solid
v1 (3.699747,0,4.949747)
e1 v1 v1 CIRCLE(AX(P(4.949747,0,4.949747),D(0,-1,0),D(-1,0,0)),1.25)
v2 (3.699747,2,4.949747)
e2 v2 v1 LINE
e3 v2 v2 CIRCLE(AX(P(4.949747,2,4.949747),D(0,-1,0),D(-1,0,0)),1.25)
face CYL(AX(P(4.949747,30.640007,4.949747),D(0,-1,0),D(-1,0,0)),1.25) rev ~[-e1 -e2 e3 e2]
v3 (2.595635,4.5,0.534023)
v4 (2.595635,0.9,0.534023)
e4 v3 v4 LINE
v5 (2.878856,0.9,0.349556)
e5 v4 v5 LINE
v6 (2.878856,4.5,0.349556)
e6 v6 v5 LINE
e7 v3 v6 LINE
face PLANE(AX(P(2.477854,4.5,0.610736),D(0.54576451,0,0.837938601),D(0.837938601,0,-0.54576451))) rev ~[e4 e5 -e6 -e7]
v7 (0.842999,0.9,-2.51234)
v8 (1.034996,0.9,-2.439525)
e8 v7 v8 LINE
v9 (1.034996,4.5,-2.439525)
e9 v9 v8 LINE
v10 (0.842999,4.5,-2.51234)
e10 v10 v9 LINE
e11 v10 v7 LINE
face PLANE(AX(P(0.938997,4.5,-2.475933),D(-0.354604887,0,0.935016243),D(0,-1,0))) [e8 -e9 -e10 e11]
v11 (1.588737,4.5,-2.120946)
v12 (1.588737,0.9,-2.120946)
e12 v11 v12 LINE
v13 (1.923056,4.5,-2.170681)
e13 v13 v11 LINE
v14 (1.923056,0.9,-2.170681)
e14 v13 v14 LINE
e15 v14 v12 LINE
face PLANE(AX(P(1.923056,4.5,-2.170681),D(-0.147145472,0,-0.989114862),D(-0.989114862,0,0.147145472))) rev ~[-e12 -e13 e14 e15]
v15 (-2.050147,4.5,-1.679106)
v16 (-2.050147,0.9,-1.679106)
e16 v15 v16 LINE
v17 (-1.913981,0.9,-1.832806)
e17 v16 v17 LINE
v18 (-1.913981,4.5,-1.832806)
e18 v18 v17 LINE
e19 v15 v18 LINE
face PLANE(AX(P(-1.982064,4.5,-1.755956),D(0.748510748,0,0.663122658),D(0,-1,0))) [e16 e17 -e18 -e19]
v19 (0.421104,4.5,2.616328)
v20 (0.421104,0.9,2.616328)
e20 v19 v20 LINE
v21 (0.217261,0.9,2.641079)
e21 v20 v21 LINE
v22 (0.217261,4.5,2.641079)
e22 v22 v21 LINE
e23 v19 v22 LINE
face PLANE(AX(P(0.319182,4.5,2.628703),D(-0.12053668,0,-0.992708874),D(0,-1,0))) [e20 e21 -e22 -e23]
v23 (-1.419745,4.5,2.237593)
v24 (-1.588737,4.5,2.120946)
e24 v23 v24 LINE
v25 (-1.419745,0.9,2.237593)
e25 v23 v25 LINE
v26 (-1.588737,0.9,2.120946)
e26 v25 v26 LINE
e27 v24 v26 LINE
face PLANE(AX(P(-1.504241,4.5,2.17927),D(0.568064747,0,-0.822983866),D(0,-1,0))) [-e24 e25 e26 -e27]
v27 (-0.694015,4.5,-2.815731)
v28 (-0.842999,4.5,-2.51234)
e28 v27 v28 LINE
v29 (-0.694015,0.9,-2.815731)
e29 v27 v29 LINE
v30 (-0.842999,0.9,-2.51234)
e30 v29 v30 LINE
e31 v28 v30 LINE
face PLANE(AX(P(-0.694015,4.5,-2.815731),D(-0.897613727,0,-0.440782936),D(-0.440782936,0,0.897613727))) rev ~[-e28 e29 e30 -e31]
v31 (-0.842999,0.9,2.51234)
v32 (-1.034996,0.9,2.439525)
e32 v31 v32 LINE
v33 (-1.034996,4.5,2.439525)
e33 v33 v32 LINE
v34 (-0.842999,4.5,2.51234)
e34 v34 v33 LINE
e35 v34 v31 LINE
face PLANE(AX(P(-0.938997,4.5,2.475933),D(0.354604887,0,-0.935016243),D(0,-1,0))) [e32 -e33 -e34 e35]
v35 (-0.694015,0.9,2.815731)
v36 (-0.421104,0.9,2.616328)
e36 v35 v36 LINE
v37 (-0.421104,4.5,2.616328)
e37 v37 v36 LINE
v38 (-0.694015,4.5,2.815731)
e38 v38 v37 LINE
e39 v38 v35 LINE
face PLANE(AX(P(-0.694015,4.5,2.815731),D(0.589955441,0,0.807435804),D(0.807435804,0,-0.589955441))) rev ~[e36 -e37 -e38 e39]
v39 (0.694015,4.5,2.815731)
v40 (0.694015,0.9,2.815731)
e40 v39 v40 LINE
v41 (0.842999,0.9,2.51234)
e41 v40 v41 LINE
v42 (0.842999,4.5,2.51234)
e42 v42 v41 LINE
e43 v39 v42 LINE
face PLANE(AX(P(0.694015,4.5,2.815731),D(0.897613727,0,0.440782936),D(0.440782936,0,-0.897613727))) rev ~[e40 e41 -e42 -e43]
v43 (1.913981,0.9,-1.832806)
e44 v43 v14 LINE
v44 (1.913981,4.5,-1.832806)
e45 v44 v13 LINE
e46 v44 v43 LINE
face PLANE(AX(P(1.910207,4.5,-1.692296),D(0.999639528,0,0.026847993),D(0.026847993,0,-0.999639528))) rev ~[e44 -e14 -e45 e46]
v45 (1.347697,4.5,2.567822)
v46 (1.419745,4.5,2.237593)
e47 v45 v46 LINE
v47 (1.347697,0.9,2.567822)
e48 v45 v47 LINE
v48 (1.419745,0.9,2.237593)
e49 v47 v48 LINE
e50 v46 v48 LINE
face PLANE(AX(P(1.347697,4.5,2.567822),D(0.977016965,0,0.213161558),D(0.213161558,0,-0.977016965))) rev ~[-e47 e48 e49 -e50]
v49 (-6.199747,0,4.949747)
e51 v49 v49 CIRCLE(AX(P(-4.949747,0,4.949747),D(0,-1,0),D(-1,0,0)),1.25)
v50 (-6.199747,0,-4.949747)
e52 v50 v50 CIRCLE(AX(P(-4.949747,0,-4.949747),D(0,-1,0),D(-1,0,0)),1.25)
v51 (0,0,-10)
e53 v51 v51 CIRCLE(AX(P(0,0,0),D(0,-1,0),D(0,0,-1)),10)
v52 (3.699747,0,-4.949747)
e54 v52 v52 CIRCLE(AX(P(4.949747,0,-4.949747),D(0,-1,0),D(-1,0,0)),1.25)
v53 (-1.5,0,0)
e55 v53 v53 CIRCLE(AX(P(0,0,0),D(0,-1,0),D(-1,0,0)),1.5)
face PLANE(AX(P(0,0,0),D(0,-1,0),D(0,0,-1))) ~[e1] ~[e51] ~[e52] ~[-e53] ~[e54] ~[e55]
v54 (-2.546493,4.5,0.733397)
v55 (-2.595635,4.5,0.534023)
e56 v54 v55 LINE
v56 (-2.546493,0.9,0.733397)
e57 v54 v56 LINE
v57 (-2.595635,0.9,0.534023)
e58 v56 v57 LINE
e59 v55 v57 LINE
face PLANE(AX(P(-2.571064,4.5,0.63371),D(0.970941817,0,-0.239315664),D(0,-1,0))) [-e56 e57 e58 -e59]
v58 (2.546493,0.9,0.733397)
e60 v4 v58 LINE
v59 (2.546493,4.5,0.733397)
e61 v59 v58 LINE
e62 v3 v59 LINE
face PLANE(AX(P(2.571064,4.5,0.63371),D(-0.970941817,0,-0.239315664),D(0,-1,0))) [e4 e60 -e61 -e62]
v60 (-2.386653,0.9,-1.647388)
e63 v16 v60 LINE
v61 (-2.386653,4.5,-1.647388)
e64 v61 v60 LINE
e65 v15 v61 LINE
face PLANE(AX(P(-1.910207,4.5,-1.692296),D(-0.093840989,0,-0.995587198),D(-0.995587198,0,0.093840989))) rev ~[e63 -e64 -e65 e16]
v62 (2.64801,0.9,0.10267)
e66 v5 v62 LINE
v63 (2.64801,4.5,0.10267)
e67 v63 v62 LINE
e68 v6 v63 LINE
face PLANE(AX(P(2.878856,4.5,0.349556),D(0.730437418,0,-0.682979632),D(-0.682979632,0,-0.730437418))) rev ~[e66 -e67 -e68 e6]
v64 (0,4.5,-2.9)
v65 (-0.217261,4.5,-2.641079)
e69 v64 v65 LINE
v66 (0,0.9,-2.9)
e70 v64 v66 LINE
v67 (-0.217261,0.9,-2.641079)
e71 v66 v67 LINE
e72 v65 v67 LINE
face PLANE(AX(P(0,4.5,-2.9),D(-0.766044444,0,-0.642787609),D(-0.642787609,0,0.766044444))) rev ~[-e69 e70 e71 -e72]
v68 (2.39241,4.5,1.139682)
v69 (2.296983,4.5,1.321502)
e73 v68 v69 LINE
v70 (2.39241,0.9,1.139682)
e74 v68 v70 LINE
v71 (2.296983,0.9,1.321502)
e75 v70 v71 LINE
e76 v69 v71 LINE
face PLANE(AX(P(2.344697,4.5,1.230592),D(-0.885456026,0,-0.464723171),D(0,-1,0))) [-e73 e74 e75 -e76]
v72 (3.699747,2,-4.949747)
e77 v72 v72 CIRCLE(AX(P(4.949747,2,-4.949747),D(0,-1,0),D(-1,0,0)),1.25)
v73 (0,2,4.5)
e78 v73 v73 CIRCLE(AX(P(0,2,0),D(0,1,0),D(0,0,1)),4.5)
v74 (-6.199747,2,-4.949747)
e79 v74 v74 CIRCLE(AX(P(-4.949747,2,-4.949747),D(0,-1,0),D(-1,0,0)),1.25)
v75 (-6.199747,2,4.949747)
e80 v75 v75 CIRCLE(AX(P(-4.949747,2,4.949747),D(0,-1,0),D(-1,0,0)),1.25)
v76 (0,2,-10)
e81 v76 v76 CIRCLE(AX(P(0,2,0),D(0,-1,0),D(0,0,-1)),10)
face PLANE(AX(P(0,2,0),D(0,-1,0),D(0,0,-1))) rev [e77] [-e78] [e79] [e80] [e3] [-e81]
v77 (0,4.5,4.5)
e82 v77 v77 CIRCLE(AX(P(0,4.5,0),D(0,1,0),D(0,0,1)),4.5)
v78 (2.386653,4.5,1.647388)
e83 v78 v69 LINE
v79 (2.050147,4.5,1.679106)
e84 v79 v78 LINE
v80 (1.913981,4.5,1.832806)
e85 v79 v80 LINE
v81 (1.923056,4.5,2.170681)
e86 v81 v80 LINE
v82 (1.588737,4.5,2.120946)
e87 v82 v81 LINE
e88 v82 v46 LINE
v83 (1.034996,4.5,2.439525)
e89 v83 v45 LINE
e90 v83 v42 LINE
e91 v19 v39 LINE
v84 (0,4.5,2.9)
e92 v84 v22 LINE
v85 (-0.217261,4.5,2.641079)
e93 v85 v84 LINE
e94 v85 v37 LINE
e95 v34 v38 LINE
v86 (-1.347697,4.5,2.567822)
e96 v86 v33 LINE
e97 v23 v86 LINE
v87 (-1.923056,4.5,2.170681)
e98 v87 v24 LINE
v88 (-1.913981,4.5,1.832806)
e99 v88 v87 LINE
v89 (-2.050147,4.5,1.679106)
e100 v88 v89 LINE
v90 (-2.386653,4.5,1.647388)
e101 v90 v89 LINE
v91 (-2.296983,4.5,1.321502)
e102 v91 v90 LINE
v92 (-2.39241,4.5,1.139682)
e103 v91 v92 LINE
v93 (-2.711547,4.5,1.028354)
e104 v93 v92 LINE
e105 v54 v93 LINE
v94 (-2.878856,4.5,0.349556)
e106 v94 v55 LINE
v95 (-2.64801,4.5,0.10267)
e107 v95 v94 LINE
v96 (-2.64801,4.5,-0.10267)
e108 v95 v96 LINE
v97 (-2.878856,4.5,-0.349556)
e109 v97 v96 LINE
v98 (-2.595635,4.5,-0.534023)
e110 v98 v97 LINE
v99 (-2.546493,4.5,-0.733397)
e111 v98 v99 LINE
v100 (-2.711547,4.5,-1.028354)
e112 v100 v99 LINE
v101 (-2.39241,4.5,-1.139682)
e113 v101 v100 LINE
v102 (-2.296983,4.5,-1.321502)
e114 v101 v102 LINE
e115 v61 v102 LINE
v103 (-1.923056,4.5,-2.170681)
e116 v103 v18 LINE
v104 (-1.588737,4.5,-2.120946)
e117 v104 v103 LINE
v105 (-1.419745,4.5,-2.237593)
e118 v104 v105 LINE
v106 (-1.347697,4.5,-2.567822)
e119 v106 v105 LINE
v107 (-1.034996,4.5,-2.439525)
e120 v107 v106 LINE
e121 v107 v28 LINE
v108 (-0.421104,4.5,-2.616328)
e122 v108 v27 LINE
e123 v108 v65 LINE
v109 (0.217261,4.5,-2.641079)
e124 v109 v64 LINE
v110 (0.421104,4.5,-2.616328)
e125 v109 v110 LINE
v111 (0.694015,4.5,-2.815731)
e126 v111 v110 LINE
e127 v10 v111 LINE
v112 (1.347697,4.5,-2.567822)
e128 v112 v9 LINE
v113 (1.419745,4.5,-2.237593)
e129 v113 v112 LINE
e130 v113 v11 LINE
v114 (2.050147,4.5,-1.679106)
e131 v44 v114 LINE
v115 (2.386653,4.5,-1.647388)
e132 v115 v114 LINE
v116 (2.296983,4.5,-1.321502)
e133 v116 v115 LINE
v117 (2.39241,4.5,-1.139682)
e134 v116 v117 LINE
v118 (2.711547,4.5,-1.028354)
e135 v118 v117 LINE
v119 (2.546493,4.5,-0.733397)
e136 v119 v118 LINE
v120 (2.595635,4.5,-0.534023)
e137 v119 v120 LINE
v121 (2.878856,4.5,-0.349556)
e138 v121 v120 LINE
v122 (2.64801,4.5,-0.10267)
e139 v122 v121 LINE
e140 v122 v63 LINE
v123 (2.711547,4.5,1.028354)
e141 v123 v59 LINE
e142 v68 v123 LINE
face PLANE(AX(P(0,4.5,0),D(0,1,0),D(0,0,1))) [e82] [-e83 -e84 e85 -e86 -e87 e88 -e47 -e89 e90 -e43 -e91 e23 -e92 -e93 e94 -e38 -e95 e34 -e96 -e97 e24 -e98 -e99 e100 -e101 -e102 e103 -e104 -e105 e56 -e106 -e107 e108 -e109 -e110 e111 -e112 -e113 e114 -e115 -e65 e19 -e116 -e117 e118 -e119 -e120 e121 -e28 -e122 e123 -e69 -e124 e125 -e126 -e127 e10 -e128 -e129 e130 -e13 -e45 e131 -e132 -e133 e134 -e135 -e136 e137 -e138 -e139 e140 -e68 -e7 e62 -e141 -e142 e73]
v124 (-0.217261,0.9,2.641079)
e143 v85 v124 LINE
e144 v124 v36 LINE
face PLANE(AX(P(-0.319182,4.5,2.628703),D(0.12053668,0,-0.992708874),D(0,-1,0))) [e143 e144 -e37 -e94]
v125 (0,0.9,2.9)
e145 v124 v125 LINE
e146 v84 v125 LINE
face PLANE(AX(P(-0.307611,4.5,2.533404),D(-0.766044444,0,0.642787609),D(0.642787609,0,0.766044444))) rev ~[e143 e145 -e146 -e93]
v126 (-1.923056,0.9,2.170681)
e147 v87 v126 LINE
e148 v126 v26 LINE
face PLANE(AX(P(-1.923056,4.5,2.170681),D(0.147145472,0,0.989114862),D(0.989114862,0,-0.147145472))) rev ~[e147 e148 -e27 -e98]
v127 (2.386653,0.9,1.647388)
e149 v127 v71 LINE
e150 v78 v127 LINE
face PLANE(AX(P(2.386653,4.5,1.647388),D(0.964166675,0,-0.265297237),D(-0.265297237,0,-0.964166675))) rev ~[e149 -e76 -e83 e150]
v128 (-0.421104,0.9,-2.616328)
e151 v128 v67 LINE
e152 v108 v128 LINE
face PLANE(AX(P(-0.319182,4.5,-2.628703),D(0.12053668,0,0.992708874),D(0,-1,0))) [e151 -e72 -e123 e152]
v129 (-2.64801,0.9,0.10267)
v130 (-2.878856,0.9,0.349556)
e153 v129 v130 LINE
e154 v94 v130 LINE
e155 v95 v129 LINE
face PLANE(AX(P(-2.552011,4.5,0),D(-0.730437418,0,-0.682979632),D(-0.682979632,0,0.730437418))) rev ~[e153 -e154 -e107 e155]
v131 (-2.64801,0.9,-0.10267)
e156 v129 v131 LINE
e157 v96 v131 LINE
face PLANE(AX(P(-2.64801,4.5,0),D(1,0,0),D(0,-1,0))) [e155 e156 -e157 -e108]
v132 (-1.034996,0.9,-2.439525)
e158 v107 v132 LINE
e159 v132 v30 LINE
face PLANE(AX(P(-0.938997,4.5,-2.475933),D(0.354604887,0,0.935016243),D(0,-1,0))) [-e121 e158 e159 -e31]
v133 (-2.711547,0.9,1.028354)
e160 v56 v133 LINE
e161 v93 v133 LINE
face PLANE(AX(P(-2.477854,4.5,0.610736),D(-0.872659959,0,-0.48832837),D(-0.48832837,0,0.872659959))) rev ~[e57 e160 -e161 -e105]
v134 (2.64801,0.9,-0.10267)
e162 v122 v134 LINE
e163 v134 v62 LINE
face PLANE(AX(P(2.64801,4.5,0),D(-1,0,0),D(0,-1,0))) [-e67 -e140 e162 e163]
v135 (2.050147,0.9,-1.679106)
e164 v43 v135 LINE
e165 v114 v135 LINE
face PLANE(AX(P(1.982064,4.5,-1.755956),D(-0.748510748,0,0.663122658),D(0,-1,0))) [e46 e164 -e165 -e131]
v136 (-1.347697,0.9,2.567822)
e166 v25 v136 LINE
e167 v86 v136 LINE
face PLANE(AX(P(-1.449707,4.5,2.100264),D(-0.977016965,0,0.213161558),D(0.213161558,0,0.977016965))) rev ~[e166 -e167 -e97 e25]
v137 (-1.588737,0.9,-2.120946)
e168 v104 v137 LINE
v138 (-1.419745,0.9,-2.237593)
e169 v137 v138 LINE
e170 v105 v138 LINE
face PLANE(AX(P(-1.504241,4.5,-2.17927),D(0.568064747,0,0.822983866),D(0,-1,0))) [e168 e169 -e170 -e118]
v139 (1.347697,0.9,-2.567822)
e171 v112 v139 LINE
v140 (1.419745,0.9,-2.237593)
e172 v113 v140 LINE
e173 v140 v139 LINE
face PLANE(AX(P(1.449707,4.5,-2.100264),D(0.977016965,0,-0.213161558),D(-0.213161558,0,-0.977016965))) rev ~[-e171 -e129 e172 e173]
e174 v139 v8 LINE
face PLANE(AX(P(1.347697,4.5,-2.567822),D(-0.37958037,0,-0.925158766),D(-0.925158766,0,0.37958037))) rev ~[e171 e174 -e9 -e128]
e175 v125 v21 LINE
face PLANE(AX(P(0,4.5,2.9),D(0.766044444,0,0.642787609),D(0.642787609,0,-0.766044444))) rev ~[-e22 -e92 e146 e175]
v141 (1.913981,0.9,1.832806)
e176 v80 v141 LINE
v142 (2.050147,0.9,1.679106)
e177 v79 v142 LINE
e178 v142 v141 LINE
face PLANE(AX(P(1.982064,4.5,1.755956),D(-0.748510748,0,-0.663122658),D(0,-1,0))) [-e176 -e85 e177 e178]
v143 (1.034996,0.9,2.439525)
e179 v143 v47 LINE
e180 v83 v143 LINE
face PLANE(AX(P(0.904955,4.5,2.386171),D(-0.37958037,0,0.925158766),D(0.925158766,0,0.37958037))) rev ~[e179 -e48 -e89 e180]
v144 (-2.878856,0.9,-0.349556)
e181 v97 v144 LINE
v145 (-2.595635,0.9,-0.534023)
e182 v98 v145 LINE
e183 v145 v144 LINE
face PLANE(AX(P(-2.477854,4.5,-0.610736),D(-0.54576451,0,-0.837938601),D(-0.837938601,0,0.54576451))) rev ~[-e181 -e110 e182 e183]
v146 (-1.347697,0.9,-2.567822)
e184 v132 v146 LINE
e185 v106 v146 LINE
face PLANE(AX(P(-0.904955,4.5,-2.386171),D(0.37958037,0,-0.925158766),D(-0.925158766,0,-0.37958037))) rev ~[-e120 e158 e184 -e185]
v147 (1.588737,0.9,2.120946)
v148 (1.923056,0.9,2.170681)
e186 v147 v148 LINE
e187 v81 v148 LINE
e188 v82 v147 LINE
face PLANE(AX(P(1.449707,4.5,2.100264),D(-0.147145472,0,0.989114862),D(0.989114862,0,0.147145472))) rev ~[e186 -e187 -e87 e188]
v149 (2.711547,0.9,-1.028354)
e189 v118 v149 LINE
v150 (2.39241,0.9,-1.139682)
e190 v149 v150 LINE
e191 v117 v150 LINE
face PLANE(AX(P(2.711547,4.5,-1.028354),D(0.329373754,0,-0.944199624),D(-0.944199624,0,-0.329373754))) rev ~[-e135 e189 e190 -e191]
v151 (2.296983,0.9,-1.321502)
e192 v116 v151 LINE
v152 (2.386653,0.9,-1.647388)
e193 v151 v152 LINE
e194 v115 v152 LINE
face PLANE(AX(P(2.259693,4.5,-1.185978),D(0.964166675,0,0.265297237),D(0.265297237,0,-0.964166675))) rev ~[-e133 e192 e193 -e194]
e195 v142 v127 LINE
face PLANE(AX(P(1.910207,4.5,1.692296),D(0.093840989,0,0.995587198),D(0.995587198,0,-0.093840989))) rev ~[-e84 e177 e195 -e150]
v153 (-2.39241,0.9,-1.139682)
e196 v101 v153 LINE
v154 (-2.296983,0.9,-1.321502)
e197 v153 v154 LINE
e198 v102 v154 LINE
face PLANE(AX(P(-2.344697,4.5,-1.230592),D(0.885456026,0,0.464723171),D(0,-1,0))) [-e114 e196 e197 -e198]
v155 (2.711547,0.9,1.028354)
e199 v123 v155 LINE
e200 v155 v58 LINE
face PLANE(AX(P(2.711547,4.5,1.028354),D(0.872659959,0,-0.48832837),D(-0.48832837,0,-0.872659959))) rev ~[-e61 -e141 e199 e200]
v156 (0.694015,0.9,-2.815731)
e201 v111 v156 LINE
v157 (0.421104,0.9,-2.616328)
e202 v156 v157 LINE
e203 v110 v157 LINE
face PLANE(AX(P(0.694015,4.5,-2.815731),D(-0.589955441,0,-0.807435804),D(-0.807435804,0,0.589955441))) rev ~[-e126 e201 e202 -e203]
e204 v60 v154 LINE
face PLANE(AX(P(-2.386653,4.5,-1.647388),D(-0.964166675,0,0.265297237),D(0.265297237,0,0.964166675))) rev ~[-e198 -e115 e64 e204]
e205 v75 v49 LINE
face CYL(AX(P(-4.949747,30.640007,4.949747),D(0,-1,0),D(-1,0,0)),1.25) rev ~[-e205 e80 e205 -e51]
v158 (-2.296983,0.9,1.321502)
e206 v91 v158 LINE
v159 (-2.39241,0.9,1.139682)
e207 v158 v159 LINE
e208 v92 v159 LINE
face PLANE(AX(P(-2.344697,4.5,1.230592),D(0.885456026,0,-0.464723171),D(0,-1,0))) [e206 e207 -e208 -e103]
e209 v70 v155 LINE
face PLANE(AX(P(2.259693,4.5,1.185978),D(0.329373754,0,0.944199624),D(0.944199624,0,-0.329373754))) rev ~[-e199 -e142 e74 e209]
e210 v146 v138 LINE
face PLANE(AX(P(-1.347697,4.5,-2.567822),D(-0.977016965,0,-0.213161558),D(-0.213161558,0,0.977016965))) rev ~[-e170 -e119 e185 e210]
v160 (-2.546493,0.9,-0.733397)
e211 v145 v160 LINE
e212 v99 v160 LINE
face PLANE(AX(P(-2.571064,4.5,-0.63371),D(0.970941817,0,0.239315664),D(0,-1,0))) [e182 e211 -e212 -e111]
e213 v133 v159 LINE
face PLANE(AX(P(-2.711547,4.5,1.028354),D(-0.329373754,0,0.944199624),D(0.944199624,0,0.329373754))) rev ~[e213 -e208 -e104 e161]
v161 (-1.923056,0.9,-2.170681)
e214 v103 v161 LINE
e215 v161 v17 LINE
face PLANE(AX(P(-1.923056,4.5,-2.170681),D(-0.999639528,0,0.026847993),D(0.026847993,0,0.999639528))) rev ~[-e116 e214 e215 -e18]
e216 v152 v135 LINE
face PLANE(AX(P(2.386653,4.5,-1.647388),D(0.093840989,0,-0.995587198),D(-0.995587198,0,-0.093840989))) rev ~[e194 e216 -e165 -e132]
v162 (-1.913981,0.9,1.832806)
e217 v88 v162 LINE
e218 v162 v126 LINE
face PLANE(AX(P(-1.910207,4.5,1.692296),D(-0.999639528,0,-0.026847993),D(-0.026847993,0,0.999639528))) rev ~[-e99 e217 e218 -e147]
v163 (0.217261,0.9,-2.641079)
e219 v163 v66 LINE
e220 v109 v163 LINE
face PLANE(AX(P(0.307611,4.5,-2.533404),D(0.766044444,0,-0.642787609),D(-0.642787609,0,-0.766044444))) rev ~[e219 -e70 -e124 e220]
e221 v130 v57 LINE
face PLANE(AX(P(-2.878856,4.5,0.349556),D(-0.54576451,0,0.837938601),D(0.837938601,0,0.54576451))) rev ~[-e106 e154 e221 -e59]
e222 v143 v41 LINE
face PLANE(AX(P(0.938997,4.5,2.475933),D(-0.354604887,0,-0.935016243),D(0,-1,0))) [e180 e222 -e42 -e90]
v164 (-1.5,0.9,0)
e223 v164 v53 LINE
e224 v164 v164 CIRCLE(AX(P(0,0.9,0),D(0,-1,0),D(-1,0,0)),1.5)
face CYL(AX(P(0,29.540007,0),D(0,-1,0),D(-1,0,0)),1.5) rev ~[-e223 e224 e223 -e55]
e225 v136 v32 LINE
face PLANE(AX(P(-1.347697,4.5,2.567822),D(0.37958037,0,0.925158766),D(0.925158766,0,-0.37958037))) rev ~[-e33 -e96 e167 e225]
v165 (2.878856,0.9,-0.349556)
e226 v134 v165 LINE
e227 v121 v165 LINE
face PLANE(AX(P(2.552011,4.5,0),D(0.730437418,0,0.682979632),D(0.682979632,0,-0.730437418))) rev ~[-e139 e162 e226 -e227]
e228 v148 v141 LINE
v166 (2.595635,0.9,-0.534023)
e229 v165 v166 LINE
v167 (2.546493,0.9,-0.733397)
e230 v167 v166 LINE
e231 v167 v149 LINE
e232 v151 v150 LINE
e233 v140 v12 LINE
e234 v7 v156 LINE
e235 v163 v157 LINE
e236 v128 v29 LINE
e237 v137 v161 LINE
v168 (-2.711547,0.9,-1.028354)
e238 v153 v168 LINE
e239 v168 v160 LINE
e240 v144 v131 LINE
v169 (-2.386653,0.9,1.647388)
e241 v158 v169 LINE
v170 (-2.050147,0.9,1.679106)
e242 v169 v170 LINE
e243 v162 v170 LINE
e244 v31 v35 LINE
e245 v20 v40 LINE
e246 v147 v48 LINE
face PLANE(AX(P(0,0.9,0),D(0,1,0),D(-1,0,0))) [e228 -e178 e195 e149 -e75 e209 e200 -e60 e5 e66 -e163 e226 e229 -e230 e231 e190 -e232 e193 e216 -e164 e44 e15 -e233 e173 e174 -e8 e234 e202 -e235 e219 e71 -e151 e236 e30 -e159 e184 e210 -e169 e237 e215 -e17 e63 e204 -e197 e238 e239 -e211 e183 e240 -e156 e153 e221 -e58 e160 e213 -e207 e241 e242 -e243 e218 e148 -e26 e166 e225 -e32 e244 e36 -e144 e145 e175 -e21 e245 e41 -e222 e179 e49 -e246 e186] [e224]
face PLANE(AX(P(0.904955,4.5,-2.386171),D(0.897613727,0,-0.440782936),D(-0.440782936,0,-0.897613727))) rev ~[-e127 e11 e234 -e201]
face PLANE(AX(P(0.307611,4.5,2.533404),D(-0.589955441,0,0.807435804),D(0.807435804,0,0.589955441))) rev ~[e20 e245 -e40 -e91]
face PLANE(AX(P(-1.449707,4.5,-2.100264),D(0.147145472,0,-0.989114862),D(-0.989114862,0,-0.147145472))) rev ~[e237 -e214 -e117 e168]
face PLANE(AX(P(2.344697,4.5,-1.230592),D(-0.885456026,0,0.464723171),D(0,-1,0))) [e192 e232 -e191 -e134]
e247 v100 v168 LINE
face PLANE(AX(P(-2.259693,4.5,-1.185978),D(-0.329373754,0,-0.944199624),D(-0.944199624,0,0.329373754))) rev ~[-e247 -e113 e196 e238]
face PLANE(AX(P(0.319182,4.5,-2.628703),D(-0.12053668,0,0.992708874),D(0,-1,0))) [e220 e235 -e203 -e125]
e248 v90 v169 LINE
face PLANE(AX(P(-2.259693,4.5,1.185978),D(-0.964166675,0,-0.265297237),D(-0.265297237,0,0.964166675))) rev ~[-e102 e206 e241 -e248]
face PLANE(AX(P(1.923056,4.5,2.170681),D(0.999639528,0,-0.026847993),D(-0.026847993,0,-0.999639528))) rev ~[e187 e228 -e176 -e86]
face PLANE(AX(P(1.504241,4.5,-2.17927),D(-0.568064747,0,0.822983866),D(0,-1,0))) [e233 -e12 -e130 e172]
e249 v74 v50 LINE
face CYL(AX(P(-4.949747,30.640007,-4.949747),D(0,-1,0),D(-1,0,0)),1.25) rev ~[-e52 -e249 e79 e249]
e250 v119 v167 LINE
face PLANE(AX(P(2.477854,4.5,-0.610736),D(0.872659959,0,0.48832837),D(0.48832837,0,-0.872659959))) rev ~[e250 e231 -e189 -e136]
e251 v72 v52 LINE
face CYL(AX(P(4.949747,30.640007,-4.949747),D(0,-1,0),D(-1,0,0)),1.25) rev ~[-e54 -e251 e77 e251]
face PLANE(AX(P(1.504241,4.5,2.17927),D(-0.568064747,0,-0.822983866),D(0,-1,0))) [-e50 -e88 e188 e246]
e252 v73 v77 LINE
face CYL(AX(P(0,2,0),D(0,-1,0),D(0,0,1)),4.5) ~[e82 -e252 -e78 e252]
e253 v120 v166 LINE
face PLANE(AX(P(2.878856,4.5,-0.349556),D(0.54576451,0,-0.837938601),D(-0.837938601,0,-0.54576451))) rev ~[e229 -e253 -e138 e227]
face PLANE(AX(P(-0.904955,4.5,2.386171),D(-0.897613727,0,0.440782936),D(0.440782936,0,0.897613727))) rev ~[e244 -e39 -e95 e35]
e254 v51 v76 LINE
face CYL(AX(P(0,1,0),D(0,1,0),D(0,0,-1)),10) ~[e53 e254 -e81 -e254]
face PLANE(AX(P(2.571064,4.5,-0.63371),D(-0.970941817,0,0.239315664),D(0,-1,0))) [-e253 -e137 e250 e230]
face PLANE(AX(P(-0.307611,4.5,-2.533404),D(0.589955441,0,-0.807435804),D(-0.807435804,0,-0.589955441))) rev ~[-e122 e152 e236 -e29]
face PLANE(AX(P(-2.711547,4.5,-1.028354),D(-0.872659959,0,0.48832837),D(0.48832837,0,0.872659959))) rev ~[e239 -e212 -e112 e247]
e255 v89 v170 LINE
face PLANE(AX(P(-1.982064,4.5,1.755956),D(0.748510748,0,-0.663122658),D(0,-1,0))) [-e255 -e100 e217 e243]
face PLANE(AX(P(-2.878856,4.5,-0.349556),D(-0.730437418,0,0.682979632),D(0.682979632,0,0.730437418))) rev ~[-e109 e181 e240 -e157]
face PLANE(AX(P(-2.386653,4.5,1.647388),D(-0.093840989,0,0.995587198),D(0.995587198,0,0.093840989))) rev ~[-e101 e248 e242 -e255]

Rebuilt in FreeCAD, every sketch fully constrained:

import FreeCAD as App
import Part
import Sketcher
from FreeCAD import Vector
Q = App.Units.Quantity


def edges_at(feature, points):
    """Names of the edges that pass closest to the given points."""
    edges = feature.Shape.Edges
    near = lambda p: min(range(len(edges)), key=lambda i: edges[i].distToShape(Part.Vertex(*p))[0])
    return sorted({f"Edge{near(p) + 1}" for p in points})

doc = App.newDocument("Part")
body = doc.addObject("PartDesign::Body", "Body")

# Sketch on XY plane
sketch1 = doc.addObject("Sketcher::SketchObject", "Sketch")
body.addObject(sketch1)
sketch1.AttachmentSupport = (doc.XY_Plane, [""])
sketch1.MapMode = "FlatFace"
sketch1.addGeometry(Part.LineSegment(Vector(0, 2, 0), Vector(0, 0, 0)), False)
sketch1.addGeometry(Part.LineSegment(Vector(0, 0, 0), Vector(10, 0, 0)), False)
sketch1.addGeometry(Part.LineSegment(Vector(10, 0, 0), Vector(10, 2, 0)), False)
sketch1.addGeometry(Part.LineSegment(Vector(10, 2, 0), Vector(0, 2, 0)), False)
sketch1.addConstraint(Sketcher.Constraint("Coincident", 0, 2, 1, 1))
sketch1.addConstraint(Sketcher.Constraint("Coincident", 1, 2, 2, 1))
sketch1.addConstraint(Sketcher.Constraint("Coincident", 2, 2, 3, 1))
sketch1.addConstraint(Sketcher.Constraint("Coincident", 3, 2, 0, 1))
sketch1.addConstraint(Sketcher.Constraint("Vertical", 0))
sketch1.addConstraint(Sketcher.Constraint("Horizontal", 1))
sketch1.addConstraint(Sketcher.Constraint("Vertical", 2))
sketch1.addConstraint(Sketcher.Constraint("Horizontal", 3))
sketch1.addConstraint(Sketcher.Constraint("Coincident", 0, 2, -1, 1))
sketch1.addConstraint(Sketcher.Constraint("DistanceX", 1, 1, 1, 2, 10.0))
sketch1.addConstraint(Sketcher.Constraint("DistanceY", 0, 2, 0, 1, 2.0))
revolution = doc.addObject("PartDesign::Revolution", "Revolution")
body.addObject(revolution)
revolution.Profile = sketch1
revolution.ReferenceAxis = (sketch1, ["V_Axis"])
revolution.Angle = 360

# Sketch on XZ plane
sketch2 = doc.addObject("Sketcher::SketchObject", "Sketch001")
body.addObject(sketch2)
sketch2.AttachmentSupport = (doc.XZ_Plane, [""])
sketch2.MapMode = "FlatFace"
sketch2.AttachmentOffset = App.Placement(Vector(0, 0, -2), App.Rotation())
sketch2.addGeometry(Part.Circle(Vector(0, 0, 0), Vector(0, 0, 1), 4.5), False)
sketch2.addConstraint(Sketcher.Constraint("Coincident", 0, 3, -1, 1))
sketch2.addConstraint(Sketcher.Constraint("Diameter", 0, 9.0))
pad1 = doc.addObject("PartDesign::Pad", "Pad")
body.addObject(pad1)
pad1.Profile = sketch2
pad1.Length = 2.5
pad1.Reversed = True

# Sketch on XZ plane
sketch3 = doc.addObject("Sketcher::SketchObject", "Sketch002")
body.addObject(sketch3)
sketch3.AttachmentSupport = (doc.XZ_Plane, [""])
sketch3.MapMode = "FlatFace"
sketch3.AttachmentOffset = App.Placement(Vector(0, 0, -4.5), App.Rotation())
sketch3.addGeometry(Part.LineSegment(Vector(2.71, 1.03, 0), Vector(2.48, 0.61, 0)), False)
sketch3.addGeometry(Part.LineSegment(Vector(2.48, 0.61, 0), Vector(2.88, 0.35, 0)), False)
sketch3.addGeometry(Part.LineSegment(Vector(2.88, 0.35, 0), Vector(2.55, 0, 0)), False)
sketch3.addGeometry(Part.LineSegment(Vector(2.55, 0, 0), Vector(2.88, -0.35, 0)), False)
sketch3.addGeometry(Part.LineSegment(Vector(2.88, -0.35, 0), Vector(2.48, -0.61, 0)), False)
sketch3.addGeometry(Part.LineSegment(Vector(2.48, -0.61, 0), Vector(2.71, -1.03, 0)), False)
sketch3.addGeometry(Part.LineSegment(Vector(2.71, -1.03, 0), Vector(2.26, -1.19, 0)), False)
sketch3.addGeometry(Part.LineSegment(Vector(2.26, -1.19, 0), Vector(2.39, -1.65, 0)), False)
sketch3.addGeometry(Part.LineSegment(Vector(2.39, -1.65, 0), Vector(1.91, -1.69, 0)), False)
sketch3.addGeometry(Part.LineSegment(Vector(1.91, -1.69, 0), Vector(1.92, -2.17, 0)), False)
sketch3.addGeometry(Part.LineSegment(Vector(1.92, -2.17, 0), Vector(1.45, -2.1, 0)), False)
sketch3.addGeometry(Part.LineSegment(Vector(1.45, -2.1, 0), Vector(1.35, -2.57, 0)), False)
sketch3.addGeometry(Part.LineSegment(Vector(1.35, -2.57, 0), Vector(0.9, -2.39, 0)), False)
sketch3.addGeometry(Part.LineSegment(Vector(0.9, -2.39, 0), Vector(0.69, -2.82, 0)), False)
sketch3.addGeometry(Part.LineSegment(Vector(0.69, -2.82, 0), Vector(0.31, -2.53, 0)), False)
sketch3.addGeometry(Part.LineSegment(Vector(0.31, -2.53, 0), Vector(0, -2.9, 0)), False)
sketch3.addGeometry(Part.LineSegment(Vector(0, -2.9, 0), Vector(-0.31, -2.53, 0)), False)
sketch3.addGeometry(Part.LineSegment(Vector(-0.31, -2.53, 0), Vector(-0.69, -2.82, 0)), False)
sketch3.addGeometry(Part.LineSegment(Vector(-0.69, -2.82, 0), Vector(-0.9, -2.39, 0)), False)
sketch3.addGeometry(Part.LineSegment(Vector(-0.9, -2.39, 0), Vector(-1.35, -2.57, 0)), False)
sketch3.addGeometry(Part.LineSegment(Vector(-1.35, -2.57, 0), Vector(-1.45, -2.1, 0)), False)
sketch3.addGeometry(Part.LineSegment(Vector(-1.45, -2.1, 0), Vector(-1.92, -2.17, 0)), False)
sketch3.addGeometry(Part.LineSegment(Vector(-1.92, -2.17, 0), Vector(-1.91, -1.69, 0)), False)
sketch3.addGeometry(Part.LineSegment(Vector(-1.91, -1.69, 0), Vector(-2.39, -1.65, 0)), False)
sketch3.addGeometry(Part.LineSegment(Vector(-2.39, -1.65, 0), Vector(-2.26, -1.19, 0)), False)
sketch3.addGeometry(Part.LineSegment(Vector(-2.26, -1.19, 0), Vector(-2.71, -1.03, 0)), False)
sketch3.addGeometry(Part.LineSegment(Vector(-2.71, -1.03, 0), Vector(-2.48, -0.61, 0)), False)
sketch3.addGeometry(Part.LineSegment(Vector(-2.48, -0.61, 0), Vector(-2.88, -0.35, 0)), False)
sketch3.addGeometry(Part.LineSegment(Vector(-2.88, -0.35, 0), Vector(-2.55, 0, 0)), False)
sketch3.addGeometry(Part.LineSegment(Vector(-2.55, 0, 0), Vector(-2.88, 0.35, 0)), False)
sketch3.addGeometry(Part.LineSegment(Vector(-2.88, 0.35, 0), Vector(-2.48, 0.61, 0)), False)
sketch3.addGeometry(Part.LineSegment(Vector(-2.48, 0.61, 0), Vector(-2.71, 1.03, 0)), False)
sketch3.addGeometry(Part.LineSegment(Vector(-2.71, 1.03, 0), Vector(-2.26, 1.19, 0)), False)
sketch3.addGeometry(Part.LineSegment(Vector(-2.26, 1.19, 0), Vector(-2.39, 1.65, 0)), False)
sketch3.addGeometry(Part.LineSegment(Vector(-2.39, 1.65, 0), Vector(-1.91, 1.69, 0)), False)
sketch3.addGeometry(Part.LineSegment(Vector(-1.91, 1.69, 0), Vector(-1.92, 2.17, 0)), False)
sketch3.addGeometry(Part.LineSegment(Vector(-1.92, 2.17, 0), Vector(-1.45, 2.1, 0)), False)
sketch3.addGeometry(Part.LineSegment(Vector(-1.45, 2.1, 0), Vector(-1.35, 2.57, 0)), False)
sketch3.addGeometry(Part.LineSegment(Vector(-1.35, 2.57, 0), Vector(-0.9, 2.39, 0)), False)
sketch3.addGeometry(Part.LineSegment(Vector(-0.9, 2.39, 0), Vector(-0.69, 2.82, 0)), False)
sketch3.addGeometry(Part.LineSegment(Vector(-0.69, 2.82, 0), Vector(-0.31, 2.53, 0)), False)
sketch3.addGeometry(Part.LineSegment(Vector(-0.31, 2.53, 0), Vector(0, 2.9, 0)), False)
sketch3.addGeometry(Part.LineSegment(Vector(0, 2.9, 0), Vector(0.31, 2.53, 0)), False)
sketch3.addGeometry(Part.LineSegment(Vector(0.31, 2.53, 0), Vector(0.69, 2.82, 0)), False)
sketch3.addGeometry(Part.LineSegment(Vector(0.69, 2.82, 0), Vector(0.9, 2.39, 0)), False)
sketch3.addGeometry(Part.LineSegment(Vector(0.9, 2.39, 0), Vector(1.35, 2.57, 0)), False)
sketch3.addGeometry(Part.LineSegment(Vector(1.35, 2.57, 0), Vector(1.45, 2.1, 0)), False)
sketch3.addGeometry(Part.LineSegment(Vector(1.45, 2.1, 0), Vector(1.92, 2.17, 0)), False)
sketch3.addGeometry(Part.LineSegment(Vector(1.92, 2.17, 0), Vector(1.91, 1.69, 0)), False)
sketch3.addGeometry(Part.LineSegment(Vector(1.91, 1.69, 0), Vector(2.39, 1.65, 0)), False)
sketch3.addGeometry(Part.LineSegment(Vector(2.39, 1.65, 0), Vector(2.26, 1.19, 0)), False)
sketch3.addGeometry(Part.LineSegment(Vector(2.26, 1.19, 0), Vector(2.71, 1.03, 0)), False)
sketch3.addConstraint(Sketcher.Constraint("Coincident", 0, 2, 1, 1))
sketch3.addConstraint(Sketcher.Constraint("Coincident", 1, 2, 2, 1))
sketch3.addConstraint(Sketcher.Constraint("Coincident", 2, 2, 3, 1))
sketch3.addConstraint(Sketcher.Constraint("Coincident", 3, 2, 4, 1))
sketch3.addConstraint(Sketcher.Constraint("Coincident", 4, 2, 5, 1))
sketch3.addConstraint(Sketcher.Constraint("Coincident", 5, 2, 6, 1))
sketch3.addConstraint(Sketcher.Constraint("Coincident", 6, 2, 7, 1))
sketch3.addConstraint(Sketcher.Constraint("Coincident", 7, 2, 8, 1))
sketch3.addConstraint(Sketcher.Constraint("Coincident", 8, 2, 9, 1))
sketch3.addConstraint(Sketcher.Constraint("Coincident", 9, 2, 10, 1))
sketch3.addConstraint(Sketcher.Constraint("Coincident", 10, 2, 11, 1))
sketch3.addConstraint(Sketcher.Constraint("Coincident", 11, 2, 12, 1))
sketch3.addConstraint(Sketcher.Constraint("Coincident", 12, 2, 13, 1))
sketch3.addConstraint(Sketcher.Constraint("Coincident", 13, 2, 14, 1))
sketch3.addConstraint(Sketcher.Constraint("Coincident", 14, 2, 15, 1))
sketch3.addConstraint(Sketcher.Constraint("Coincident", 15, 2, 16, 1))
sketch3.addConstraint(Sketcher.Constraint("Coincident", 16, 2, 17, 1))
sketch3.addConstraint(Sketcher.Constraint("Coincident", 17, 2, 18, 1))
sketch3.addConstraint(Sketcher.Constraint("Coincident", 18, 2, 19, 1))
sketch3.addConstraint(Sketcher.Constraint("Coincident", 19, 2, 20, 1))
sketch3.addConstraint(Sketcher.Constraint("Coincident", 20, 2, 21, 1))
sketch3.addConstraint(Sketcher.Constraint("Coincident", 21, 2, 22, 1))
sketch3.addConstraint(Sketcher.Constraint("Coincident", 22, 2, 23, 1))
sketch3.addConstraint(Sketcher.Constraint("Coincident", 23, 2, 24, 1))
sketch3.addConstraint(Sketcher.Constraint("Coincident", 24, 2, 25, 1))
sketch3.addConstraint(Sketcher.Constraint("Coincident", 25, 2, 26, 1))
sketch3.addConstraint(Sketcher.Constraint("Coincident", 26, 2, 27, 1))
sketch3.addConstraint(Sketcher.Constraint("Coincident", 27, 2, 28, 1))
sketch3.addConstraint(Sketcher.Constraint("Coincident", 28, 2, 29, 1))
sketch3.addConstraint(Sketcher.Constraint("Coincident", 29, 2, 30, 1))
sketch3.addConstraint(Sketcher.Constraint("Coincident", 30, 2, 31, 1))
sketch3.addConstraint(Sketcher.Constraint("Coincident", 31, 2, 32, 1))
sketch3.addConstraint(Sketcher.Constraint("Coincident", 32, 2, 33, 1))
sketch3.addConstraint(Sketcher.Constraint("Coincident", 33, 2, 34, 1))
sketch3.addConstraint(Sketcher.Constraint("Coincident", 34, 2, 35, 1))
sketch3.addConstraint(Sketcher.Constraint("Coincident", 35, 2, 36, 1))
sketch3.addConstraint(Sketcher.Constraint("Coincident", 36, 2, 37, 1))
sketch3.addConstraint(Sketcher.Constraint("Coincident", 37, 2, 38, 1))
sketch3.addConstraint(Sketcher.Constraint("Coincident", 38, 2, 39, 1))
sketch3.addConstraint(Sketcher.Constraint("Coincident", 39, 2, 40, 1))
sketch3.addConstraint(Sketcher.Constraint("Coincident", 40, 2, 41, 1))
sketch3.addConstraint(Sketcher.Constraint("Coincident", 41, 2, 42, 1))
sketch3.addConstraint(Sketcher.Constraint("Coincident", 42, 2, 43, 1))
sketch3.addConstraint(Sketcher.Constraint("Coincident", 43, 2, 44, 1))
sketch3.addConstraint(Sketcher.Constraint("Coincident", 44, 2, 45, 1))
sketch3.addConstraint(Sketcher.Constraint("Coincident", 45, 2, 46, 1))
sketch3.addConstraint(Sketcher.Constraint("Coincident", 46, 2, 47, 1))
sketch3.addConstraint(Sketcher.Constraint("Coincident", 47, 2, 48, 1))
sketch3.addConstraint(Sketcher.Constraint("Coincident", 48, 2, 49, 1))
sketch3.addConstraint(Sketcher.Constraint("Coincident", 49, 2, 50, 1))
sketch3.addConstraint(Sketcher.Constraint("Coincident", 50, 2, 51, 1))
sketch3.addConstraint(Sketcher.Constraint("Coincident", 51, 2, 0, 1))
sketch3.addConstraint(Sketcher.Constraint("Symmetric", 0, 2, 26, 2, -1, 1))
sketch3.addConstraint(Sketcher.Constraint("Symmetric", 1, 2, 27, 2, -1, 1))
sketch3.addConstraint(Sketcher.Constraint("Symmetric", 2, 2, 28, 2, -1, 1))
sketch3.addConstraint(Sketcher.Constraint("Symmetric", 3, 2, 29, 2, -1, 1))
sketch3.addConstraint(Sketcher.Constraint("Symmetric", 4, 2, 30, 2, -1, 1))
sketch3.addConstraint(Sketcher.Constraint("Symmetric", 5, 2, 31, 2, -1, 1))
sketch3.addConstraint(Sketcher.Constraint("Symmetric", 6, 2, 32, 2, -1, 1))
sketch3.addConstraint(Sketcher.Constraint("Symmetric", 7, 2, 33, 2, -1, 1))
sketch3.addConstraint(Sketcher.Constraint("Symmetric", 8, 2, 34, 2, -1, 1))
sketch3.addConstraint(Sketcher.Constraint("Symmetric", 9, 2, 35, 2, -1, 1))
sketch3.addConstraint(Sketcher.Constraint("Symmetric", 10, 2, 36, 2, -1, 1))
sketch3.addConstraint(Sketcher.Constraint("Symmetric", 11, 2, 37, 2, -1, 1))
sketch3.addConstraint(Sketcher.Constraint("Symmetric", 12, 2, 38, 2, -1, 1))
sketch3.addConstraint(Sketcher.Constraint("Symmetric", 13, 2, 39, 2, -1, 1))
sketch3.addConstraint(Sketcher.Constraint("Symmetric", 14, 2, 40, 2, -1, 1))
sketch3.addConstraint(Sketcher.Constraint("Symmetric", 15, 2, 41, 2, -1, 1))
sketch3.addConstraint(Sketcher.Constraint("Symmetric", 16, 2, 42, 2, -1, 1))
sketch3.addConstraint(Sketcher.Constraint("Symmetric", 17, 2, 43, 2, -1, 1))
sketch3.addConstraint(Sketcher.Constraint("Symmetric", 18, 2, 44, 2, -1, 1))
sketch3.addConstraint(Sketcher.Constraint("Symmetric", 19, 2, 45, 2, -1, 1))
sketch3.addConstraint(Sketcher.Constraint("Symmetric", 20, 2, 46, 2, -1, 1))
sketch3.addConstraint(Sketcher.Constraint("Symmetric", 21, 2, 47, 2, -1, 1))
sketch3.addConstraint(Sketcher.Constraint("Symmetric", 22, 2, 48, 2, -1, 1))
sketch3.addConstraint(Sketcher.Constraint("Symmetric", 23, 2, 49, 2, -1, 1))
sketch3.addConstraint(Sketcher.Constraint("Symmetric", 24, 2, 50, 2, -1, 1))
sketch3.addConstraint(Sketcher.Constraint("Symmetric", 25, 2, 51, 2, -1, 1))
sketch3.addConstraint(Sketcher.Constraint("Symmetric", 14, 2, 16, 2, -2))
sketch3.addConstraint(Sketcher.Constraint("Symmetric", 13, 2, 17, 2, -2))
sketch3.addConstraint(Sketcher.Constraint("Symmetric", 12, 2, 18, 2, -2))
sketch3.addConstraint(Sketcher.Constraint("Symmetric", 11, 2, 19, 2, -2))
sketch3.addConstraint(Sketcher.Constraint("Symmetric", 10, 2, 20, 2, -2))
sketch3.addConstraint(Sketcher.Constraint("Symmetric", 9, 2, 21, 2, -2))
sketch3.addConstraint(Sketcher.Constraint("Symmetric", 8, 2, 22, 2, -2))
sketch3.addConstraint(Sketcher.Constraint("Symmetric", 7, 2, 23, 2, -2))
sketch3.addConstraint(Sketcher.Constraint("Symmetric", 6, 2, 24, 2, -2))
sketch3.addConstraint(Sketcher.Constraint("Symmetric", 5, 2, 25, 2, -2))
sketch3.addConstraint(Sketcher.Constraint("Symmetric", 4, 2, 26, 2, -2))
sketch3.addConstraint(Sketcher.Constraint("Symmetric", 3, 2, 27, 2, -2))
sketch3.addConstraint(Sketcher.Constraint("PointOnObject", 2, 2, -1))
sketch3.addConstraint(Sketcher.Constraint("PointOnObject", 15, 2, -2))
sketch3.addConstraint(Sketcher.Constraint("Equal", 0, 1))
sketch3.addConstraint(Sketcher.Constraint("Equal", 1, 2))
sketch3.addConstraint(Sketcher.Constraint("Equal", 5, 6))
sketch3.addConstraint(Sketcher.Constraint("Equal", 6, 7))
sketch3.addConstraint(Sketcher.Constraint("Equal", 7, 8))
sketch3.addConstraint(Sketcher.Constraint("Equal", 8, 9))
sketch3.addConstraint(Sketcher.Constraint("Equal", 9, 10))
sketch3.addConstraint(Sketcher.Constraint("Equal", 10, 11))
sketch3.addConstraint(Sketcher.Constraint("Equal", 11, 12))
sketch3.addConstraint(Sketcher.Constraint("Equal", 12, 13))
sketch3.addConstraint(Sketcher.Constraint("Equal", 13, 14))
sketch3.addConstraint(Sketcher.Constraint("Equal", 14, 15))
sketch3.addConstraint(Sketcher.Constraint("Angle", 15, Q("-130 deg")))
sketch3.addConstraint(Sketcher.Constraint("DistanceY", 15, 2, -1, 1, 2.9))
sketch3.addConstraint(Sketcher.Constraint("DistanceX", 0, 2, 1, 2, 0.401002))
sketch3.addConstraint(Sketcher.Constraint("DistanceX", 7, 2, 4, 2, 0.091201))
sketch3.addConstraint(Sketcher.Constraint("DistanceX", 9, 2, 4, 2, 0.554798))
sketch3.addConstraint(Sketcher.Constraint("DistanceX", 10, 2, 8, 2, 0.4605))
sketch3.addConstraint(Sketcher.Constraint("DistanceX", 12, 2, 9, 2, 1.0181))
sketch3.addConstraint(Sketcher.Constraint("DistanceX", -1, 1, 2, 2, 2.552011))
sketch3.addConstraint(Sketcher.Constraint("DistanceY", 6, 2, -1, 1, 1.185978))
sketch3.addConstraint(Sketcher.Constraint("DistanceY", 9, 2, -1, 1, 2.170681))
sketch3.addConstraint(Sketcher.Constraint("DistanceY", 12, 2, -1, 1, 2.386171))
sketch3.addConstraint(Sketcher.Constraint("DistanceY", 13, 2, -1, 1, 2.815731))
sketch3.addConstraint(Sketcher.Constraint("DistanceX", -1, 1, 14, 2, 0.307611))
sketch3.addConstraint(Sketcher.Constraint("DistanceY", 5, 2, 4, 2, 0.417618))
pocket1 = doc.addObject("PartDesign::Pocket", "Pocket")
body.addObject(pocket1)
pocket1.Profile = sketch3
pocket1.Length = 3.6
pocket1.Reversed = True

# Sketch on XZ plane
sketch4 = doc.addObject("Sketcher::SketchObject", "Sketch003")
body.addObject(sketch4)
sketch4.AttachmentSupport = (doc.XZ_Plane, [""])
sketch4.MapMode = "FlatFace"
sketch4.AttachmentOffset = App.Placement(Vector(0, 0, -0.9), App.Rotation())
sketch4.addGeometry(Part.Circle(Vector(0, 0, 0), Vector(0, 0, 1), 1.5), False)
sketch4.addConstraint(Sketcher.Constraint("Coincident", 0, 3, -1, 1))
sketch4.addConstraint(Sketcher.Constraint("Diameter", 0, 3.0))
doc.recompute()
hole = doc.addObject("PartDesign::Hole", "Hole")
body.addObject(hole)
hole.Profile = sketch4
hole.ThreadType = "None"
hole.Diameter = 3
hole.DepthType = "ThroughAll"
hole.Reversed = True

# Sketch on XZ plane
sketch5 = doc.addObject("Sketcher::SketchObject", "Sketch004")
body.addObject(sketch5)
sketch5.AttachmentSupport = (doc.XZ_Plane, [""])
sketch5.MapMode = "FlatFace"
sketch5.AttachmentOffset = App.Placement(Vector(0, 0, -2), App.Rotation())
sketch5.addGeometry(Part.Circle(Vector(-4.9, -4.9, 0), Vector(0, 0, 1), 1.2), False)
sketch5.addGeometry(Part.Circle(Vector(4.9, -4.9, 0), Vector(0, 0, 1), 1.2), False)
sketch5.addGeometry(Part.Circle(Vector(4.9, 4.9, 0), Vector(0, 0, 1), 1.2), False)
sketch5.addGeometry(Part.Circle(Vector(-4.9, 4.9, 0), Vector(0, 0, 1), 1.2), False)
sketch5.addConstraint(Sketcher.Constraint("Equal", 0, 1))
sketch5.addConstraint(Sketcher.Constraint("Equal", 1, 2))
sketch5.addConstraint(Sketcher.Constraint("Equal", 2, 3))
sketch5.addConstraint(Sketcher.Constraint("Symmetric", 0, 3, 2, 3, -1, 1))
sketch5.addConstraint(Sketcher.Constraint("Symmetric", 1, 3, 3, 3, -1, 1))
sketch5.addConstraint(Sketcher.Constraint("Symmetric", 0, 3, 1, 3, -2))
sketch5.addConstraint(Sketcher.Constraint("Diameter", 0, 2.5))
sketch5.addConstraint(Sketcher.Constraint("DistanceX", 0, 3, -1, 1, 4.949747))
sketch5.addConstraint(Sketcher.Constraint("DistanceY", 0, 3, -1, 1, 4.949747))
doc.recompute()
hole2 = doc.addObject("PartDesign::Hole", "Hole001")
body.addObject(hole2)
hole2.Profile = sketch5
hole2.ThreadType = "None"
hole2.Diameter = 2.5
hole2.DepthType = "ThroughAll"
hole2.Reversed = True
doc.recompute()

chamfer = doc.addObject("PartDesign::Chamfer", "Chamfer")
body.addObject(chamfer)
chamfer.Base = (hole2, edges_at(hole2, [(2.26, 2.7, 1.186)]))
chamfer.Size = 0.14056
doc.recompute()

chamfer2 = doc.addObject("PartDesign::Chamfer", "Chamfer001")
body.addObject(chamfer2)
chamfer2.Base = (chamfer, edges_at(chamfer, [(1.91, 2.7, 1.692)]))
chamfer2.Size = 0.14056
doc.recompute()

chamfer3 = doc.addObject("PartDesign::Chamfer", "Chamfer002")
body.addObject(chamfer3)
chamfer3.Base = (chamfer2, edges_at(chamfer2, [(1.45, 2.7, 2.1)]))
chamfer3.Size = 0.14056
doc.recompute()

chamfer4 = doc.addObject("PartDesign::Chamfer", "Chamfer003")
body.addObject(chamfer4)
chamfer4.Base = (chamfer3, edges_at(chamfer3, [(0.905, 2.7, 2.386)]))
chamfer4.Size = 0.14056
doc.recompute()

chamfer5 = doc.addObject("PartDesign::Chamfer", "Chamfer004")
body.addObject(chamfer5)
chamfer5.Base = (chamfer4, edges_at(chamfer4, [(0.308, 2.7, 2.533)]))
chamfer5.Size = 0.14056
doc.recompute()

chamfer6 = doc.addObject("PartDesign::Chamfer", "Chamfer005")
body.addObject(chamfer6)
chamfer6.Base = (chamfer5, edges_at(chamfer5, [(-0.308, 2.7, 2.533)]))
chamfer6.Size = 0.14056
doc.recompute()

chamfer7 = doc.addObject("PartDesign::Chamfer", "Chamfer006")
body.addObject(chamfer7)
chamfer7.Base = (chamfer6, edges_at(chamfer6, [(-0.905, 2.7, 2.386)]))
chamfer7.Size = 0.14056
doc.recompute()

chamfer8 = doc.addObject("PartDesign::Chamfer", "Chamfer007")
body.addObject(chamfer8)
chamfer8.Base = (chamfer7, edges_at(chamfer7, [(-1.45, 2.7, 2.1)]))
chamfer8.Size = 0.14056
doc.recompute()

chamfer9 = doc.addObject("PartDesign::Chamfer", "Chamfer008")
body.addObject(chamfer9)
chamfer9.Base = (chamfer8, edges_at(chamfer8, [(-1.91, 2.7, 1.692)]))
chamfer9.Size = 0.14056
doc.recompute()

chamfer10 = doc.addObject("PartDesign::Chamfer", "Chamfer009")
body.addObject(chamfer10)
chamfer10.Base = (chamfer9, edges_at(chamfer9, [(-2.26, 2.7, 1.186)]))
chamfer10.Size = 0.14056
doc.recompute()

chamfer11 = doc.addObject("PartDesign::Chamfer", "Chamfer010")
body.addObject(chamfer11)
chamfer11.Base = (chamfer10, edges_at(chamfer10, [(-2.478, 2.7, 0.611)]))
chamfer11.Size = 0.14056
doc.recompute()

chamfer12 = doc.addObject("PartDesign::Chamfer", "Chamfer011")
body.addObject(chamfer12)
chamfer12.Base = (chamfer11, edges_at(chamfer11, [(-2.552, 2.7, 0)]))
chamfer12.Size = 0.14056
doc.recompute()

chamfer13 = doc.addObject("PartDesign::Chamfer", "Chamfer012")
body.addObject(chamfer13)
chamfer13.Base = (chamfer12, edges_at(chamfer12, [(-2.478, 2.7, -0.611)]))
chamfer13.Size = 0.14056
doc.recompute()

chamfer14 = doc.addObject("PartDesign::Chamfer", "Chamfer013")
body.addObject(chamfer14)
chamfer14.Base = (chamfer13, edges_at(chamfer13, [(-2.26, 2.7, -1.186)]))
chamfer14.Size = 0.14056
doc.recompute()

chamfer15 = doc.addObject("PartDesign::Chamfer", "Chamfer014")
body.addObject(chamfer15)
chamfer15.Base = (chamfer14, edges_at(chamfer14, [(-1.91, 2.7, -1.692)]))
chamfer15.Size = 0.14056
doc.recompute()

chamfer16 = doc.addObject("PartDesign::Chamfer", "Chamfer015")
body.addObject(chamfer16)
chamfer16.Base = (chamfer15, edges_at(chamfer15, [(-1.45, 2.7, -2.1)]))
chamfer16.Size = 0.14056
doc.recompute()

chamfer17 = doc.addObject("PartDesign::Chamfer", "Chamfer016")
body.addObject(chamfer17)
chamfer17.Base = (chamfer16, edges_at(chamfer16, [(-0.905, 2.7, -2.386)]))
chamfer17.Size = 0.14056
doc.recompute()

chamfer18 = doc.addObject("PartDesign::Chamfer", "Chamfer017")
body.addObject(chamfer18)
chamfer18.Base = (chamfer17, edges_at(chamfer17, [(-0.308, 2.7, -2.533)]))
chamfer18.Size = 0.14056
doc.recompute()

chamfer19 = doc.addObject("PartDesign::Chamfer", "Chamfer018")
body.addObject(chamfer19)
chamfer19.Base = (chamfer18, edges_at(chamfer18, [(0.308, 2.7, -2.533)]))
chamfer19.Size = 0.14056
doc.recompute()

chamfer20 = doc.addObject("PartDesign::Chamfer", "Chamfer019")
body.addObject(chamfer20)
chamfer20.Base = (chamfer19, edges_at(chamfer19, [(0.905, 2.7, -2.386)]))
chamfer20.Size = 0.14056
doc.recompute()

chamfer21 = doc.addObject("PartDesign::Chamfer", "Chamfer020")
body.addObject(chamfer21)
chamfer21.Base = (chamfer20, edges_at(chamfer20, [(1.45, 2.7, -2.1)]))
chamfer21.Size = 0.14056
doc.recompute()

chamfer22 = doc.addObject("PartDesign::Chamfer", "Chamfer021")
body.addObject(chamfer22)
chamfer22.Base = (chamfer21, edges_at(chamfer21, [(1.91, 2.7, -1.692)]))
chamfer22.Size = 0.14056
doc.recompute()

chamfer23 = doc.addObject("PartDesign::Chamfer", "Chamfer022")
body.addObject(chamfer23)
chamfer23.Base = (chamfer22, edges_at(chamfer22, [(2.26, 2.7, -1.186)]))
chamfer23.Size = 0.14056
doc.recompute()

chamfer24 = doc.addObject("PartDesign::Chamfer", "Chamfer023")
body.addObject(chamfer24)
chamfer24.Base = (chamfer23, edges_at(chamfer23, [(2.478, 2.7, -0.611)]))
chamfer24.Size = 0.14056
doc.recompute()

chamfer25 = doc.addObject("PartDesign::Chamfer", "Chamfer024")
body.addObject(chamfer25)
chamfer25.Base = (chamfer24, edges_at(chamfer24, [(2.552, 2.7, 0)]))
chamfer25.Size = 0.14056
doc.recompute()

chamfer26 = doc.addObject("PartDesign::Chamfer", "Chamfer025")
body.addObject(chamfer26)
chamfer26.Base = (chamfer25, edges_at(chamfer25, [(2.478, 2.7, 0.611)]))
chamfer26.Size = 0.14056

doc.recompute()
